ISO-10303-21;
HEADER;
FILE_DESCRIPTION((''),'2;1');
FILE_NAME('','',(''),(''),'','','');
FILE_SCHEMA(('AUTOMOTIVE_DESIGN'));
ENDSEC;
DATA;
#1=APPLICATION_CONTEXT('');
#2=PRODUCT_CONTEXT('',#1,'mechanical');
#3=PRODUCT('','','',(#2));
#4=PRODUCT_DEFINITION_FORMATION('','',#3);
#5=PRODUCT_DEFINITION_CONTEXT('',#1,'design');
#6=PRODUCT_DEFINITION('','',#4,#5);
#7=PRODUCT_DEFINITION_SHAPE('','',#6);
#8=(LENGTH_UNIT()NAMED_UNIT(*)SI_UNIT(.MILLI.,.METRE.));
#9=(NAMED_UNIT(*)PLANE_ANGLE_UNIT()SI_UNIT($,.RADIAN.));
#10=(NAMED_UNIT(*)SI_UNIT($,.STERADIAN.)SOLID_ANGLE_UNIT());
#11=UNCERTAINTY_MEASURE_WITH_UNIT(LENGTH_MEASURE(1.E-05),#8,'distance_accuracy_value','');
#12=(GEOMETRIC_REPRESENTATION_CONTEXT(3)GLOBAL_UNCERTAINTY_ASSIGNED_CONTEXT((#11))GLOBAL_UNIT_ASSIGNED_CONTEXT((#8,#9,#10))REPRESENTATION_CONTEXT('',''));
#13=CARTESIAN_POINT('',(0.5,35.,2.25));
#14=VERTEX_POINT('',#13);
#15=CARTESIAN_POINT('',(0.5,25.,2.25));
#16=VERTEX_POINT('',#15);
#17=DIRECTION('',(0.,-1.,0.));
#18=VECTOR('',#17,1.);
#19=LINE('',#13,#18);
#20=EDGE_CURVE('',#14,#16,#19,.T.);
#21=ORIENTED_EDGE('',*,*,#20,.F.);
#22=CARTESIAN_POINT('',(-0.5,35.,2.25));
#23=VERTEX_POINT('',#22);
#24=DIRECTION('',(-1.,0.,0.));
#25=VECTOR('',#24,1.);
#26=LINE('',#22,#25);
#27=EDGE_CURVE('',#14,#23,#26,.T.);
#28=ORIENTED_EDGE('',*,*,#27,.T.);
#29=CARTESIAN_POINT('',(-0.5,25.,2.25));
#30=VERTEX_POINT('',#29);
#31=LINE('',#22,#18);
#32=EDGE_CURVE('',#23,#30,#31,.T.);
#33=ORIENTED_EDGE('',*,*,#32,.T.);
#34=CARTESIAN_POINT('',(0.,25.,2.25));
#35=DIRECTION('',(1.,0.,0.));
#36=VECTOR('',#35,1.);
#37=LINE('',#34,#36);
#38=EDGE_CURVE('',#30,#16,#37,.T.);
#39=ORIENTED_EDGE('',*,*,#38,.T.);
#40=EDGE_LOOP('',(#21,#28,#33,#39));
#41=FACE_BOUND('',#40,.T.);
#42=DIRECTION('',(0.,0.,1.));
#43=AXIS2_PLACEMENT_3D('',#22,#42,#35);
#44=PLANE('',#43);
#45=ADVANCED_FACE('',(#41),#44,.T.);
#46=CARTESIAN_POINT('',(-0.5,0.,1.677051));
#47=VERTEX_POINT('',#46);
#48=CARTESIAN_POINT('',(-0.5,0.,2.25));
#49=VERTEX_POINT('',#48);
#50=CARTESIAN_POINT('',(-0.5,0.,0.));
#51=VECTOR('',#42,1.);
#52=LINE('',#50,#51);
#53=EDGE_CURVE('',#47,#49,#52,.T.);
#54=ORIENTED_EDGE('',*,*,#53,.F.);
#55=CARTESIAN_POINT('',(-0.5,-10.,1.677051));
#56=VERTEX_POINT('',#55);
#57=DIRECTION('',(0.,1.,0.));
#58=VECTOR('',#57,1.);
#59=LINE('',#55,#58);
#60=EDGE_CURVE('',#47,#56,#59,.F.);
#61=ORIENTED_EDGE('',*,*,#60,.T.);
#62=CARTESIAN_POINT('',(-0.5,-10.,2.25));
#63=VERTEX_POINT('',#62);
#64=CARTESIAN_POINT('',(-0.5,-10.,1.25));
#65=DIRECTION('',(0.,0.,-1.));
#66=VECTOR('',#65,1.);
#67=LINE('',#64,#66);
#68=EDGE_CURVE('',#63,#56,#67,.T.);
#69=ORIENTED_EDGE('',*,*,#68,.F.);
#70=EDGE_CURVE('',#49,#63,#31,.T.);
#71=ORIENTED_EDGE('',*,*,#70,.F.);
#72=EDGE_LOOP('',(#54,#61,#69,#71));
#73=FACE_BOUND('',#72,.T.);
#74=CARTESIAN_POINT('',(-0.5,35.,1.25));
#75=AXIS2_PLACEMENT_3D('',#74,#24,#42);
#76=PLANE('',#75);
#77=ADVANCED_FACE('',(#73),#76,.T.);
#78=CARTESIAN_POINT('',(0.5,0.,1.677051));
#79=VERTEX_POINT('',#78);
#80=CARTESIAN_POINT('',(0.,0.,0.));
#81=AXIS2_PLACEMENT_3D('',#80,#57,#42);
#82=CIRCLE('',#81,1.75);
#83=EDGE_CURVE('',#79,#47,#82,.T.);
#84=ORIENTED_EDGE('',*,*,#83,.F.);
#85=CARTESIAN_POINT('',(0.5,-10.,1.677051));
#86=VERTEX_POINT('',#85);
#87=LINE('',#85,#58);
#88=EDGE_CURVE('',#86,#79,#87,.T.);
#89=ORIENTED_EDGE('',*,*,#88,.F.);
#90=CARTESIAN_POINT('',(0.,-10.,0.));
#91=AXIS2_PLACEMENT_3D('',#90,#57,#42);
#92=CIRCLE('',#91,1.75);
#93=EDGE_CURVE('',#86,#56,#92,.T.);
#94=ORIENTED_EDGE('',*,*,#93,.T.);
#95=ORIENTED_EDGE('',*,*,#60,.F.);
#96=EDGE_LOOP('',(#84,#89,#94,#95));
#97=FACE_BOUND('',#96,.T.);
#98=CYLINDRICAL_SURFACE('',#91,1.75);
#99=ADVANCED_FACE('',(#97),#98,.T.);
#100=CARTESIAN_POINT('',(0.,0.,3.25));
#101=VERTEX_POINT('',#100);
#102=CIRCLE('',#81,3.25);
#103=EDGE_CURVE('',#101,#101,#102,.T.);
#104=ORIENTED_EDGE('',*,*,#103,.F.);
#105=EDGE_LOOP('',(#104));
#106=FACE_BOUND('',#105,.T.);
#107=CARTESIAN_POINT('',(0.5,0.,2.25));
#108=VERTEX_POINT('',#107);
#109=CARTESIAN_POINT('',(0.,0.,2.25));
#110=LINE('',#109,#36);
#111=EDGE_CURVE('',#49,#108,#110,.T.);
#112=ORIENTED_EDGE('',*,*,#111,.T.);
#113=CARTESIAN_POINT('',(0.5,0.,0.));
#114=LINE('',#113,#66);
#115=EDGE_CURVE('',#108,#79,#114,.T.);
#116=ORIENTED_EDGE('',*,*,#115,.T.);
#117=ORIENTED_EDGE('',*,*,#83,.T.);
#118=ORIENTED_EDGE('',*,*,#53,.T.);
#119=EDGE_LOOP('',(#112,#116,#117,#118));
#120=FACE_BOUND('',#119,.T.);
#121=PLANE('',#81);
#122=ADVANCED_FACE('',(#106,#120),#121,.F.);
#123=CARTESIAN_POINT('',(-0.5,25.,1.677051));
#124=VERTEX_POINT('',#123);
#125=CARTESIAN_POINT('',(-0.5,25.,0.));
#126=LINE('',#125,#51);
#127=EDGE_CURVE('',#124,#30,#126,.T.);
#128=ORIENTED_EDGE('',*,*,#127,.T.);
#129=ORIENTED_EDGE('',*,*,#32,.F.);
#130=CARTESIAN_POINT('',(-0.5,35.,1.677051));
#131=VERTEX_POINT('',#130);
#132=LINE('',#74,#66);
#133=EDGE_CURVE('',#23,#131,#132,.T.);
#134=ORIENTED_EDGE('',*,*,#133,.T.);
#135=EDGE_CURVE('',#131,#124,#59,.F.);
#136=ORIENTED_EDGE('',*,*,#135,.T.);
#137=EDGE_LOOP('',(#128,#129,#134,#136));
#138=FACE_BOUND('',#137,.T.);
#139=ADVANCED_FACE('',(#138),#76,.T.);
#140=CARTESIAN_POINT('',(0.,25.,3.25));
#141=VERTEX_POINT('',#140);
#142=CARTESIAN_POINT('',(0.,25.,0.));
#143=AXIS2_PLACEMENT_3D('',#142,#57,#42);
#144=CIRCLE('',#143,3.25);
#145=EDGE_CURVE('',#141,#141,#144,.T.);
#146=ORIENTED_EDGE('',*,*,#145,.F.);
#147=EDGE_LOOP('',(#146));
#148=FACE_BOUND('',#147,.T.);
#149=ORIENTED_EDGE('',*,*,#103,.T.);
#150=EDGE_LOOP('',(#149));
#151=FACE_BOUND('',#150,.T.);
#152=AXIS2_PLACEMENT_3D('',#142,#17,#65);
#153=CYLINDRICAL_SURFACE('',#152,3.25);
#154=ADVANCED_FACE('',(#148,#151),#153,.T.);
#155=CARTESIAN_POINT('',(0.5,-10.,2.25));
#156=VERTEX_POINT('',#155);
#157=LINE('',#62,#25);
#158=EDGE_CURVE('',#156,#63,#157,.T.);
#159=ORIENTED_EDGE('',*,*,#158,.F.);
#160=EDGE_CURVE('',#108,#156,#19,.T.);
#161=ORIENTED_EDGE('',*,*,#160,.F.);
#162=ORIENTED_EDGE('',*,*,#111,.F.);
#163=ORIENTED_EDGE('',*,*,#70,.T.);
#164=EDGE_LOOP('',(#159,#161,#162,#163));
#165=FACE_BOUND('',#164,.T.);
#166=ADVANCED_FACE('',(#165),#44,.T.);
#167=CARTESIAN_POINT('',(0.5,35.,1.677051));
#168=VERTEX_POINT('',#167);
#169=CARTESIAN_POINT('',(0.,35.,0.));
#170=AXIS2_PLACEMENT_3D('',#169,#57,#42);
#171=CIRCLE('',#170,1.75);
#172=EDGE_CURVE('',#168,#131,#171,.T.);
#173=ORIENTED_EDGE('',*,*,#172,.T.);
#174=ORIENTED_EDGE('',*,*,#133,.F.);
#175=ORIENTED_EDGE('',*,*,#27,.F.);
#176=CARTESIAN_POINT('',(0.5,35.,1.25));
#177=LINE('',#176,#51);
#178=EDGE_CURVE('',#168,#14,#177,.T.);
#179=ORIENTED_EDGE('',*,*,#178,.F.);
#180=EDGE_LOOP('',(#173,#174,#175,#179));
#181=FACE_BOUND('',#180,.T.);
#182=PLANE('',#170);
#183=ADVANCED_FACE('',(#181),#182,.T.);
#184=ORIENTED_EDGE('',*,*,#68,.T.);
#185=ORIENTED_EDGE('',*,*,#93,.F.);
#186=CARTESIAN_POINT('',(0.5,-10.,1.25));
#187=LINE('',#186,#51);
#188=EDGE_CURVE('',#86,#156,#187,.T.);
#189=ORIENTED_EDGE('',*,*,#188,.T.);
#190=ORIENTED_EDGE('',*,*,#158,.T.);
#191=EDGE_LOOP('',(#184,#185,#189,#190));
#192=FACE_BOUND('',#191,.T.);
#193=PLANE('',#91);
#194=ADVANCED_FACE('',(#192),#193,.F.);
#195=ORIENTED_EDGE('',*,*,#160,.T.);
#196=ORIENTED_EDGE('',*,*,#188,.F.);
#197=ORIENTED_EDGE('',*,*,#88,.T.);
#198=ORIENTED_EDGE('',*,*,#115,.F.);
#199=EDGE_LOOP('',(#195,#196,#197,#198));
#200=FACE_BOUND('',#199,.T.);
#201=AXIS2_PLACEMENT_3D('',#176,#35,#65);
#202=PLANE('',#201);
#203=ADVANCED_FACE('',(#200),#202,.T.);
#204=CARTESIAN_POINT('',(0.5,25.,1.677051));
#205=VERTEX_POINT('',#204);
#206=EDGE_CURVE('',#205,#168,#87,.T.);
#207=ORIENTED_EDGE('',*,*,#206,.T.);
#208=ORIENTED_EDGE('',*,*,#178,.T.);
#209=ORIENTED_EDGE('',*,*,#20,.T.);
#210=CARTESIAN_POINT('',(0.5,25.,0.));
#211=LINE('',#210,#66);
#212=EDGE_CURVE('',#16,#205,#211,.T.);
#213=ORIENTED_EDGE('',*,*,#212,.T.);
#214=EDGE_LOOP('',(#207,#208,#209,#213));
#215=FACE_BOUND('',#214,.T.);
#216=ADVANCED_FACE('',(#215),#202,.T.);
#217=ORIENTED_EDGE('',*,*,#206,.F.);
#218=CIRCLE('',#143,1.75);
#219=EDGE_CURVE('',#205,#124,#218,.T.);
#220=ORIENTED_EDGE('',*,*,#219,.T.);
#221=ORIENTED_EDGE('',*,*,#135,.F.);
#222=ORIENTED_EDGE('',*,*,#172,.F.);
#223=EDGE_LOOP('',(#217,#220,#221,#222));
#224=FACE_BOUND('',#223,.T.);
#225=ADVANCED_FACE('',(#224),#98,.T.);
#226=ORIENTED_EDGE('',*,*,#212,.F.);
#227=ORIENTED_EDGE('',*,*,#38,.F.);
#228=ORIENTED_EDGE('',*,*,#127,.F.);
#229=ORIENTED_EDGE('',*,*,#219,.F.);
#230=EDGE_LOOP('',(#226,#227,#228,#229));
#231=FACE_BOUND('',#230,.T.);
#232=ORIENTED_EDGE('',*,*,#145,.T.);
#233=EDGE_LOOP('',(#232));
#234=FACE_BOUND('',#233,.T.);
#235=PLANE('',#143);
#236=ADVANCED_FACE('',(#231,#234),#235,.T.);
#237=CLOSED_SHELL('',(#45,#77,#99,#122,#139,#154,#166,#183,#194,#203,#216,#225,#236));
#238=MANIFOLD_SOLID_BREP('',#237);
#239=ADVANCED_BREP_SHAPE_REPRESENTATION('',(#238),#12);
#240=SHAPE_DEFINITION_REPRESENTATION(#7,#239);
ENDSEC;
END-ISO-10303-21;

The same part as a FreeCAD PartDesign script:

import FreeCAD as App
import Part
import Sketcher
from FreeCAD import Vector
Q = App.Units.Quantity


def add_polygon(sketch, points):
    """Adds a closed chain of lines whose ends are joined by coincident constraints."""
    first, n = sketch.GeometryCount, len(points)
    for a, b in zip(points, points[1:] + points[:1]):
        sketch.addGeometry(Part.LineSegment(App.Vector(*a, 0), App.Vector(*b, 0)), False)
    for i in range(n):
        sketch.addConstraint(Sketcher.Constraint("Coincident", first + i, 2, first + (i + 1) % n, 1))

doc = App.newDocument("Part")
body = doc.addObject("PartDesign::Body", "Body")

sketch1 = doc.addObject("Sketcher::SketchObject", "Sketch")
body.addObject(sketch1)
sketch1.AttachmentSupport = (doc.XZ_Plane, [""])
sketch1.MapMode = "FlatFace"
sketch1.addGeometry(Part.Circle(Vector(0, 0, 0), Vector(0, 0, 1), 3.2), False)
sketch1.addConstraint([
    Sketcher.Constraint("Coincident", 0, 3, -1, 1),
    Sketcher.Constraint("Diameter", 0, Q("6.5 mm")),
])
pad1 = doc.addObject("PartDesign::Pad", "Pad")
body.addObject(pad1)
pad1.Profile = sketch1
pad1.Length = 25
pad1.Reversed = True

sketch2 = doc.addObject("Sketcher::SketchObject", "Sketch001")
body.addObject(sketch2)
sketch2.AttachmentSupport = (doc.XZ_Plane, [""])
sketch2.MapMode = "FlatFace"
sketch2.AttachmentOffset = App.Placement(Vector(0, 0, -25), App.Rotation())
sketch2.addGeometry(Part.Circle(Vector(0, 0, 0), Vector(0, 0, 1), 1.8), False)
sketch2.addConstraint([
    Sketcher.Constraint("Coincident", 0, 3, -1, 1),
    Sketcher.Constraint("Diameter", 0, Q("3.5 mm")),
])
pad2 = doc.addObject("PartDesign::Pad", "Pad001")
body.addObject(pad2)
pad2.Profile = sketch2
pad2.Type = "TwoLengths"
pad2.Length = 10
pad2.Length2 = 35
pad2.Reversed = True

sketch3 = doc.addObject("Sketcher::SketchObject", "Sketch002")
body.addObject(sketch3)
sketch3.AttachmentSupport = (doc.XZ_Plane, [""])
sketch3.MapMode = "FlatFace"
sketch3.AttachmentOffset = App.Placement(Vector(0, 0, -35), App.Rotation())
add_polygon(sketch3, [(-0.5, 2.2), (-0.5, 1.2), (0.5, 1.2), (0.5, 2.2)])
sketch3.addConstraint([
    Sketcher.Constraint("Vertical", 0),
    Sketcher.Constraint("Horizontal", 1),
    Sketcher.Constraint("Vertical", 2),
    Sketcher.Constraint("Horizontal", 3),
    Sketcher.Constraint("Equal", 3, 0),
    Sketcher.Constraint("DistanceX", 1, 1, 1, 2, Q("1 mm")),
    Sketcher.Constraint("DistanceX", 0, 2, -1, 1, Q("0.5 mm")),
    Sketcher.Constraint("DistanceY", -1, 1, 0, 2, Q("1.25 mm")),
])
pad3 = doc.addObject("PartDesign::Pad", "Pad002")
body.addObject(pad3)
pad3.Profile = sketch3
pad3.Length = 45

doc.recompute()
